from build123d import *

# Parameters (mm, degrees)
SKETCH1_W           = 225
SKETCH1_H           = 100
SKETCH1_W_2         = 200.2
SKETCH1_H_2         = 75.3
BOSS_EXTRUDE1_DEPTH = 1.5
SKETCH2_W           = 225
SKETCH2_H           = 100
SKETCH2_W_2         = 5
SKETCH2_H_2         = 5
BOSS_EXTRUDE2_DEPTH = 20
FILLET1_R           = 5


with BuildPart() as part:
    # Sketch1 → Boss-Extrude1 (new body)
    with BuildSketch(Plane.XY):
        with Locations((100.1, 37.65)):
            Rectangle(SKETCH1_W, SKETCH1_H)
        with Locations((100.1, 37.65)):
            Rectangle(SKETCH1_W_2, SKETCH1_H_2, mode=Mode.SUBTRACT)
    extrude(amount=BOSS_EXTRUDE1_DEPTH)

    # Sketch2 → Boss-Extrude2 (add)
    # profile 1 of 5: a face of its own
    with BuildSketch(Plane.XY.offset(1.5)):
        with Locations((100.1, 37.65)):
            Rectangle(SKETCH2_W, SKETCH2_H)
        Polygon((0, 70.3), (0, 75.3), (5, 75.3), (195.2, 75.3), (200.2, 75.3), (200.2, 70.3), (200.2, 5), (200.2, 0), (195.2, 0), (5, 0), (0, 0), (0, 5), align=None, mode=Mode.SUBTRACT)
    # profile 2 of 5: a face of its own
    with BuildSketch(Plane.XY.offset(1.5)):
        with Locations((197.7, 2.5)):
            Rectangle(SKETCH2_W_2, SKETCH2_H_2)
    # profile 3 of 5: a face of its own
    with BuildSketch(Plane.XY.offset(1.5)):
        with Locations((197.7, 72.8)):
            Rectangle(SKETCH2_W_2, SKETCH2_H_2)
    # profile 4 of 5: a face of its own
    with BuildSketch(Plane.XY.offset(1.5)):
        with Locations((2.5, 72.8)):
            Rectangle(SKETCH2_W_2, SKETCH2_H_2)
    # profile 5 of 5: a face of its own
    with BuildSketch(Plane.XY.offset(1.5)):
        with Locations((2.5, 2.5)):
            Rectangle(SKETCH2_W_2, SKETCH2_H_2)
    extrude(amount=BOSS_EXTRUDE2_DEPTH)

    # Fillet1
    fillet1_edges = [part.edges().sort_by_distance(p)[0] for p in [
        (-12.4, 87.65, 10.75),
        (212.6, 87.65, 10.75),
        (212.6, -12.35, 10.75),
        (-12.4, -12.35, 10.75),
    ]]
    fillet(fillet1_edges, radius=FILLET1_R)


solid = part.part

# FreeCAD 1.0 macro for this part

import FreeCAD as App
import Part
import Sketcher


def edges_at(feature, points):
    """Names of the edges that pass closest to the given points."""
    edges = feature.Shape.Edges
    near = lambda p: min(range(len(edges)), key=lambda i: edges[i].distToShape(Part.Vertex(*p))[0])
    return sorted({f"Edge{near(p) + 1}" for p in points})

doc = App.newDocument("Part")
params = doc.addObject("Spreadsheet::Sheet", "Params")
for row, (alias, value) in enumerate([
    ("sketch1_width", "225 mm"),
    ("sketch1_height", "100 mm"),
    ("sketch1_width2", "200.2 mm"),
    ("sketch1_height2", "75.3 mm"),
    ("pad1_length", "1.5 mm"),
    ("sketch2_width", "225 mm"),
    ("sketch2_width2", "5 mm"),
    ("sketch2_height", "100 mm"),
    ("sketch2_width3", "190.2 mm"),
    ("sketch2_height2", "65.3 mm"),
    ("pad2_length", "20 mm"),
    ("fillet_radius", "5 mm"),
], start=1):
    params.set(f"A{row}", alias)
    params.set(f"B{row}", "=" + value)
    params.setAlias(f"B{row}", alias)

body = doc.addObject("PartDesign::Body", "Body")

# Sketch on XY plane
sketch1 = body.newObject("Sketcher::SketchObject", "Sketch")
sketch1.AttachmentSupport = (doc.getObject("XY_Plane"), [""])
sketch1.MapMode = "FlatFace"
sketch1.addGeometry([
    Part.LineSegment(App.Vector(-12, 88, 0), App.Vector(-12, -12, 0)),  # 0
    Part.LineSegment(App.Vector(-12, -12, 0), App.Vector(213, -12, 0)),  # 1
    Part.LineSegment(App.Vector(213, -12, 0), App.Vector(213, 88, 0)),  # 2
    Part.LineSegment(App.Vector(213, 88, 0), App.Vector(-12, 88, 0)),  # 3
    Part.LineSegment(App.Vector(200, 0, 0), App.Vector(0, 0, 0)),  # 4
    Part.LineSegment(App.Vector(0, 0, 0), App.Vector(0, 75, 0)),  # 5
    Part.LineSegment(App.Vector(0, 75, 0), App.Vector(200, 75, 0)),  # 6
    Part.LineSegment(App.Vector(200, 75, 0), App.Vector(200, 0, 0)),  # 7
], False)
sketch1.addConstraint([
    Sketcher.Constraint("Coincident", 0, 2, 1, 1),
    Sketcher.Constraint("Coincident", 1, 2, 2, 1),
    Sketcher.Constraint("Coincident", 2, 2, 3, 1),
    Sketcher.Constraint("Coincident", 3, 2, 0, 1),
    Sketcher.Constraint("Coincident", 4, 2, 5, 1),
    Sketcher.Constraint("Coincident", 5, 2, 6, 1),
    Sketcher.Constraint("Coincident", 6, 2, 7, 1),
    Sketcher.Constraint("Coincident", 7, 2, 4, 1),
    Sketcher.Constraint("Vertical", 0),
    Sketcher.Constraint("Horizontal", 1),
    Sketcher.Constraint("Vertical", 2),
    Sketcher.Constraint("Horizontal", 3),
    Sketcher.Constraint("Horizontal", 4),
    Sketcher.Constraint("Vertical", 5),
    Sketcher.Constraint("Horizontal", 6),
    Sketcher.Constraint("Vertical", 7),
    Sketcher.Constraint("Coincident", 4, 2, -1, 1),
    Sketcher.Constraint("DistanceX", 1, 1, 1, 2, 225.0),
    Sketcher.Constraint("DistanceY", 0, 2, 0, 1, 100.0),
    Sketcher.Constraint("DistanceX", 4, 2, 4, 1, 200.2),
    Sketcher.Constraint("DistanceY", 5, 1, 5, 2, 75.3),
    Sketcher.Constraint("DistanceX", 0, 2, -1, 1, 12.4),
    Sketcher.Constraint("DistanceY", 0, 2, -1, 1, 12.35),
])
sketch1.setExpression("Constraints[17]", "Params.sketch1_width")
sketch1.setExpression("Constraints[18]", "Params.sketch1_height")
sketch1.setExpression("Constraints[19]", "Params.sketch1_width2")
sketch1.setExpression("Constraints[20]", "Params.sketch1_height2")
pad1 = body.newObject("PartDesign::Pad", "Pad")
pad1.Profile = sketch1
pad1.setExpression("Length", "Params.pad1_length")

# Sketch on XY plane
sketch2 = body.newObject("Sketcher::SketchObject", "Sketch001")
sketch2.AttachmentSupport = (doc.getObject("XY_Plane"), [""])
sketch2.MapMode = "FlatFace"
sketch2.AttachmentOffset = App.Placement(App.Vector(0, 0, 1.5), App.Rotation())
sketch2.addGeometry([
    Part.LineSegment(App.Vector(-12, 88, 0), App.Vector(-12, -12, 0)),  # 0
    Part.LineSegment(App.Vector(-12, -12, 0), App.Vector(213, -12, 0)),  # 1
    Part.LineSegment(App.Vector(213, -12, 0), App.Vector(213, 88, 0)),  # 2
    Part.LineSegment(App.Vector(213, 88, 0), App.Vector(-12, 88, 0)),  # 3
    Part.LineSegment(App.Vector(0, 5, 0), App.Vector(0, 70, 0)),  # 4
    Part.LineSegment(App.Vector(0, 70, 0), App.Vector(5, 70, 0)),  # 5
    Part.LineSegment(App.Vector(5, 70, 0), App.Vector(5, 75, 0)),  # 6
    Part.LineSegment(App.Vector(5, 75, 0), App.Vector(195, 75, 0)),  # 7
    Part.LineSegment(App.Vector(195, 75, 0), App.Vector(195, 70, 0)),  # 8
    Part.LineSegment(App.Vector(195, 70, 0), App.Vector(200, 70, 0)),  # 9
    Part.LineSegment(App.Vector(200, 70, 0), App.Vector(200, 5, 0)),  # 10
    Part.LineSegment(App.Vector(200, 5, 0), App.Vector(195, 5, 0)),  # 11
    Part.LineSegment(App.Vector(195, 5, 0), App.Vector(195, 0, 0)),  # 12
    Part.LineSegment(App.Vector(195, 0, 0), App.Vector(5, 0, 0)),  # 13
    Part.LineSegment(App.Vector(5, 0, 0), App.Vector(5, 5, 0)),  # 14
    Part.LineSegment(App.Vector(5, 5, 0), App.Vector(0, 5, 0)),  # 15
], False)
sketch2.addConstraint([
    Sketcher.Constraint("Coincident", 0, 2, 1, 1),
    Sketcher.Constraint("Coincident", 1, 2, 2, 1),
    Sketcher.Constraint("Coincident", 2, 2, 3, 1),
    Sketcher.Constraint("Coincident", 3, 2, 0, 1),
    Sketcher.Constraint("Coincident", 4, 2, 5, 1),
    Sketcher.Constraint("Coincident", 5, 2, 6, 1),
    Sketcher.Constraint("Coincident", 6, 2, 7, 1),
    Sketcher.Constraint("Coincident", 7, 2, 8, 1),
    Sketcher.Constraint("Coincident", 8, 2, 9, 1),
    Sketcher.Constraint("Coincident", 9, 2, 10, 1),
    Sketcher.Constraint("Coincident", 10, 2, 11, 1),
    Sketcher.Constraint("Coincident", 11, 2, 12, 1),
    Sketcher.Constraint("Coincident", 12, 2, 13, 1),
    Sketcher.Constraint("Coincident", 13, 2, 14, 1),
    Sketcher.Constraint("Coincident", 14, 2, 15, 1),
    Sketcher.Constraint("Coincident", 15, 2, 4, 1),
    Sketcher.Constraint("Vertical", 0),
    Sketcher.Constraint("Horizontal", 1),
    Sketcher.Constraint("Vertical", 2),
    Sketcher.Constraint("Horizontal", 3),
    Sketcher.Constraint("Vertical", 4),
    Sketcher.Constraint("Horizontal", 5),
    Sketcher.Constraint("Vertical", 6),
    Sketcher.Constraint("Horizontal", 7),
    Sketcher.Constraint("Vertical", 8),
    Sketcher.Constraint("Horizontal", 9),
    Sketcher.Constraint("Vertical", 10),
    Sketcher.Constraint("Horizontal", 11),
    Sketcher.Constraint("Vertical", 12),
    Sketcher.Constraint("Horizontal", 13),
    Sketcher.Constraint("Vertical", 14),
    Sketcher.Constraint("Horizontal", 15),
    Sketcher.Constraint("PointOnObject", 4, 2, -2),
    Sketcher.Constraint("PointOnObject", 12, 2, -1),
    Sketcher.Constraint("Horizontal", 5, 2, 8, 2),
    Sketcher.Constraint("Horizontal", 11, 2, 14, 2),
    Sketcher.Constraint("Vertical", 8, 2, 11, 2),
    Sketcher.Constraint("Vertical", 6, 2, 13, 2),
    Sketcher.Constraint("Equal", 5, 9),
    Sketcher.Constraint("Equal", 15, 6),
    Sketcher.Constraint("Equal", 8, 12),
    Sketcher.Constraint("DistanceX", 1, 1, 1, 2, 225.0),
    Sketcher.Constraint("DistanceX", 5, 1, 5, 2, 5.0),
    Sketcher.Constraint("DistanceY", 0, 2, 0, 1, 100.0),
    Sketcher.Constraint("DistanceX", 7, 1, 7, 2, 190.2),
    Sketcher.Constraint("DistanceY", 4, 1, 4, 2, 65.3),
    Sketcher.Constraint("DistanceX", 0, 2, -1, 1, 12.4),
    Sketcher.Constraint("DistanceY", 0, 2, -1, 1, 12.35),
])
sketch2.setExpression("Constraints[41]", "Params.sketch2_width")
sketch2.setExpression("Constraints[42]", "Params.sketch2_width2")
sketch2.setExpression("Constraints[43]", "Params.sketch2_height")
sketch2.setExpression("Constraints[44]", "Params.sketch2_width3")
sketch2.setExpression("Constraints[45]", "Params.sketch2_height2")
pad2 = body.newObject("PartDesign::Pad", "Pad001")
pad2.Profile = sketch2
pad2.setExpression("Length", "Params.pad2_length")
doc.recompute()

fillet = body.newObject("PartDesign::Fillet", "Fillet")
fillet.Base = (pad2, edges_at(pad2, [
    (-12.4, 87.65, 10.75),
    (212.6, 87.65, 10.75),
    (212.6, -12.35, 10.75),
    (-12.4, -12.35, 10.75),
]))
fillet.setExpression("Radius", "Params.fillet_radius")

doc.recompute()
